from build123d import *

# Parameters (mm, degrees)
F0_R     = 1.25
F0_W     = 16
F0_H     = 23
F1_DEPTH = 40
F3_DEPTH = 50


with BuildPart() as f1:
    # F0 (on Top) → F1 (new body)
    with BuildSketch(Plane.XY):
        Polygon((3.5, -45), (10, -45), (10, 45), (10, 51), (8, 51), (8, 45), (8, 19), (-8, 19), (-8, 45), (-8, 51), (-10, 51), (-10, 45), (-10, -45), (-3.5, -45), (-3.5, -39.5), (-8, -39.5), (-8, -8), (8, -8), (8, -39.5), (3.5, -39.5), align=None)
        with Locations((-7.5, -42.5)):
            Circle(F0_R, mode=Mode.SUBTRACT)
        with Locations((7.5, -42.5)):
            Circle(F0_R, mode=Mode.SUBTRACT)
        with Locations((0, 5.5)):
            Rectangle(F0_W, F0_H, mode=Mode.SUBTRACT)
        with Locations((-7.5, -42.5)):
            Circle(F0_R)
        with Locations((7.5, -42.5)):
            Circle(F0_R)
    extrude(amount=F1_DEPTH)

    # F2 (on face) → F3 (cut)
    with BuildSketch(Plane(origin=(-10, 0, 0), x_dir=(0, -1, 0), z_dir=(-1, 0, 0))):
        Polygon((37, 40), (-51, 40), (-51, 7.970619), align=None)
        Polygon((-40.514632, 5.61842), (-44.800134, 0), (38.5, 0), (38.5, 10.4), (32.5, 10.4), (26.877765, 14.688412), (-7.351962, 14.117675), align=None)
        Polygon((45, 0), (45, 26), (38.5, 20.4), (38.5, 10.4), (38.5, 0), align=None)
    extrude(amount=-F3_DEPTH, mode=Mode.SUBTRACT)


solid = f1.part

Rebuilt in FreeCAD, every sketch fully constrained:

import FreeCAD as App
import Part
import Sketcher
Q = App.Units.Quantity


def add_polygon(sketch, points):
    """Adds a closed chain of lines whose ends are joined by coincident constraints."""
    first, n = sketch.GeometryCount, len(points)
    for a, b in zip(points, points[1:] + points[:1]):
        sketch.addGeometry(Part.LineSegment(App.Vector(*a, 0), App.Vector(*b, 0)), False)
    for i in range(n):
        sketch.addConstraint(Sketcher.Constraint("Coincident", first + i, 2, first + (i + 1) % n, 1))

doc = App.newDocument("Part")
params = doc.addObject("Spreadsheet::Sheet", "Params")
for row, (alias, value) in enumerate([
    ("sketch1_width", "2 mm"),
    ("sketch1_width2", "16 mm"),
    ("sketch1_height", "96 mm"),
    ("sketch1_height2", "32 mm"),
    ("sketch1_height3", "23 mm"),
    ("pad1_length", "40 mm"),
    ("sketch2_width", "88 mm"),
    ("sketch2_width2", "6 mm"),
    ("sketch2_height", "26 mm"),
    ("sketch2_height2", "10 mm"),
    ("pocket1_length", "50 mm"),
], start=1):
    params.set(f"A{row}", alias)
    params.set(f"B{row}", "=" + value)
    params.setAlias(f"B{row}", alias)

body = doc.addObject("PartDesign::Body", "Body")

# Sketch on XY plane
sketch1 = body.newObject("Sketcher::SketchObject", "Sketch")
sketch1.AttachmentSupport = (doc.getObject("XY_Plane"), [""])
sketch1.MapMode = "FlatFace"
add_polygon(sketch1, [(3.5, -45), (10, -45), (10, 51), (8, 51), (8, 19), (-8, 19), (-8, 51), (-10, 51), (-10, -45), (-3.5, -45), (-3.5, -39.5), (-8, -39.5), (-8, -8), (8, -8), (8, -39.5), (3.5, -39.5)])  # lines 0-15
add_polygon(sketch1, [(8, -6), (-8, -6), (-8, 17), (8, 17)])  # lines 16-19
sketch1.addConstraint([
    Sketcher.Constraint("Horizontal", 0),
    Sketcher.Constraint("Vertical", 1),
    Sketcher.Constraint("Horizontal", 2),
    Sketcher.Constraint("Vertical", 3),
    Sketcher.Constraint("Horizontal", 4),
    Sketcher.Constraint("Vertical", 5),
    Sketcher.Constraint("Horizontal", 6),
    Sketcher.Constraint("Vertical", 7),
    Sketcher.Constraint("Horizontal", 8),
    Sketcher.Constraint("Vertical", 9),
    Sketcher.Constraint("Horizontal", 10),
    Sketcher.Constraint("Vertical", 11),
    Sketcher.Constraint("Horizontal", 12),
    Sketcher.Constraint("Vertical", 13),
    Sketcher.Constraint("Horizontal", 14),
    Sketcher.Constraint("Vertical", 15),
    Sketcher.Constraint("Horizontal", 16),
    Sketcher.Constraint("Vertical", 17),
    Sketcher.Constraint("Horizontal", 18),
    Sketcher.Constraint("Vertical", 19),
    Sketcher.Constraint("Symmetric", 2, 2, 5, 2, -2),
    Sketcher.Constraint("Symmetric", 0, 2, 7, 2, -2),
    Sketcher.Constraint("Symmetric", 10, 2, 13, 2, -2),
    Sketcher.Constraint("Vertical", 5, 2, 10, 2),
    Sketcher.Constraint("Vertical", 11, 2, 16, 2),
    Sketcher.Constraint("Vertical", 13, 2, 18, 2),
    Sketcher.Constraint("Equal", 0, 8),
    Sketcher.Constraint("DistanceX", 2, 2, 2, 1, Q("2 mm")),
    Sketcher.Constraint("DistanceX", 4, 2, 4, 1, Q("16 mm")),
    Sketcher.Constraint("DistanceY", 1, 1, 1, 2, Q("96 mm")),
    Sketcher.Constraint("DistanceY", 3, 2, 3, 1, Q("32 mm")),
    Sketcher.Constraint("DistanceY", 17, 1, 17, 2, Q("23 mm")),
    Sketcher.Constraint("DistanceX", 0, 1, 0, 2, Q("6.5 mm")),
    Sketcher.Constraint("DistanceY", 9, 1, 9, 2, Q("5.5 mm")),
    Sketcher.Constraint("DistanceY", 11, 1, 11, 2, Q("31.5 mm")),
    Sketcher.Constraint("DistanceY", 0, 2, -1, 1, Q("45 mm")),
    Sketcher.Constraint("DistanceY", 16, 2, -1, 1, Q("6 mm")),
])
sketch1.setExpression("Constraints[47]", "Params.sketch1_width")
sketch1.setExpression("Constraints[48]", "Params.sketch1_width2")
sketch1.setExpression("Constraints[49]", "Params.sketch1_height")
sketch1.setExpression("Constraints[50]", "Params.sketch1_height2")
sketch1.setExpression("Constraints[51]", "Params.sketch1_height3")
pad1 = body.newObject("PartDesign::Pad", "Pad")
pad1.Profile = sketch1
pad1.setExpression("Length", "Params.pad1_length")

# Sketch on YZ plane
sketch2 = body.newObject("Sketcher::SketchObject", "Sketch001")
sketch2.AttachmentSupport = (doc.getObject("YZ_Plane"), [""])
sketch2.MapMode = "FlatFace"
sketch2.AttachmentOffset = App.Placement(App.Vector(0, 0, -10), App.Rotation())
add_polygon(sketch2, [(-37, 40), (51, 40), (51, 8)])  # lines 0-2
add_polygon(sketch2, [(41, 6), (45, 0), (-45, 0), (-45, 26), (-38, 20), (-38, 10), (-32, 10), (-27, 15), (7, 14)])  # lines 3-11
sketch2.addConstraint([
    Sketcher.Constraint("Horizontal", 0),
    Sketcher.Constraint("Vertical", 1),
    Sketcher.Constraint("Horizontal", 4),
    Sketcher.Constraint("Vertical", 5),
    Sketcher.Constraint("Vertical", 7),
    Sketcher.Constraint("Horizontal", 8),
    Sketcher.Constraint("PointOnObject", 3, 2, -1),
    Sketcher.Constraint("Perpendicular", 3, 9),
    Sketcher.Constraint("Equal", 10, 11),
    Sketcher.Constraint("DistanceX", 0, 1, 0, 2, Q("88 mm")),
    Sketcher.Constraint("DistanceX", 8, 1, 8, 2, Q("6 mm")),
    Sketcher.Constraint("DistanceY", 5, 1, 5, 2, Q("26 mm")),
    Sketcher.Constraint("DistanceY", 7, 2, 7, 1, Q("10 mm")),
    Sketcher.Constraint("Angle", 2, Q("160 deg")),
    Sketcher.Constraint("DistanceX", -1, 1, 0, 2, Q("51 mm")),
    Sketcher.Constraint("DistanceY", -1, 1, 0, 2, Q("40 mm")),
    Sketcher.Constraint("DistanceX", 4, 2, -1, 1, Q("45 mm")),
    Sketcher.Constraint("DistanceX", 6, 2, -1, 1, Q("38.5 mm")),
    Sketcher.Constraint("DistanceY", -1, 1, 6, 2, Q("20.4 mm")),
    Sketcher.Constraint("DistanceY", 11, 2, 1, 2, Q("2.352199 mm")),
    Sketcher.Constraint("Distance", 3, Q("7.06627 mm")),
    Sketcher.Constraint("Distance", 9, Q("7.071068 mm")),
    Sketcher.Constraint("DistanceX", 4, 2, 4, 1, Q("89.800134 mm")),
    Sketcher.Constraint("DistanceX", 10, 2, 11, 2, Q("33.16267 mm")),
])
sketch2.setExpression("Constraints[21]", "Params.sketch2_width")
sketch2.setExpression("Constraints[22]", "Params.sketch2_width2")
sketch2.setExpression("Constraints[23]", "Params.sketch2_height")
sketch2.setExpression("Constraints[24]", "Params.sketch2_height2")
pocket1 = body.newObject("PartDesign::Pocket", "Pocket")
pocket1.Profile = sketch2
pocket1.setExpression("Length", "Params.pocket1_length")
pocket1.Reversed = True

doc.recompute()
